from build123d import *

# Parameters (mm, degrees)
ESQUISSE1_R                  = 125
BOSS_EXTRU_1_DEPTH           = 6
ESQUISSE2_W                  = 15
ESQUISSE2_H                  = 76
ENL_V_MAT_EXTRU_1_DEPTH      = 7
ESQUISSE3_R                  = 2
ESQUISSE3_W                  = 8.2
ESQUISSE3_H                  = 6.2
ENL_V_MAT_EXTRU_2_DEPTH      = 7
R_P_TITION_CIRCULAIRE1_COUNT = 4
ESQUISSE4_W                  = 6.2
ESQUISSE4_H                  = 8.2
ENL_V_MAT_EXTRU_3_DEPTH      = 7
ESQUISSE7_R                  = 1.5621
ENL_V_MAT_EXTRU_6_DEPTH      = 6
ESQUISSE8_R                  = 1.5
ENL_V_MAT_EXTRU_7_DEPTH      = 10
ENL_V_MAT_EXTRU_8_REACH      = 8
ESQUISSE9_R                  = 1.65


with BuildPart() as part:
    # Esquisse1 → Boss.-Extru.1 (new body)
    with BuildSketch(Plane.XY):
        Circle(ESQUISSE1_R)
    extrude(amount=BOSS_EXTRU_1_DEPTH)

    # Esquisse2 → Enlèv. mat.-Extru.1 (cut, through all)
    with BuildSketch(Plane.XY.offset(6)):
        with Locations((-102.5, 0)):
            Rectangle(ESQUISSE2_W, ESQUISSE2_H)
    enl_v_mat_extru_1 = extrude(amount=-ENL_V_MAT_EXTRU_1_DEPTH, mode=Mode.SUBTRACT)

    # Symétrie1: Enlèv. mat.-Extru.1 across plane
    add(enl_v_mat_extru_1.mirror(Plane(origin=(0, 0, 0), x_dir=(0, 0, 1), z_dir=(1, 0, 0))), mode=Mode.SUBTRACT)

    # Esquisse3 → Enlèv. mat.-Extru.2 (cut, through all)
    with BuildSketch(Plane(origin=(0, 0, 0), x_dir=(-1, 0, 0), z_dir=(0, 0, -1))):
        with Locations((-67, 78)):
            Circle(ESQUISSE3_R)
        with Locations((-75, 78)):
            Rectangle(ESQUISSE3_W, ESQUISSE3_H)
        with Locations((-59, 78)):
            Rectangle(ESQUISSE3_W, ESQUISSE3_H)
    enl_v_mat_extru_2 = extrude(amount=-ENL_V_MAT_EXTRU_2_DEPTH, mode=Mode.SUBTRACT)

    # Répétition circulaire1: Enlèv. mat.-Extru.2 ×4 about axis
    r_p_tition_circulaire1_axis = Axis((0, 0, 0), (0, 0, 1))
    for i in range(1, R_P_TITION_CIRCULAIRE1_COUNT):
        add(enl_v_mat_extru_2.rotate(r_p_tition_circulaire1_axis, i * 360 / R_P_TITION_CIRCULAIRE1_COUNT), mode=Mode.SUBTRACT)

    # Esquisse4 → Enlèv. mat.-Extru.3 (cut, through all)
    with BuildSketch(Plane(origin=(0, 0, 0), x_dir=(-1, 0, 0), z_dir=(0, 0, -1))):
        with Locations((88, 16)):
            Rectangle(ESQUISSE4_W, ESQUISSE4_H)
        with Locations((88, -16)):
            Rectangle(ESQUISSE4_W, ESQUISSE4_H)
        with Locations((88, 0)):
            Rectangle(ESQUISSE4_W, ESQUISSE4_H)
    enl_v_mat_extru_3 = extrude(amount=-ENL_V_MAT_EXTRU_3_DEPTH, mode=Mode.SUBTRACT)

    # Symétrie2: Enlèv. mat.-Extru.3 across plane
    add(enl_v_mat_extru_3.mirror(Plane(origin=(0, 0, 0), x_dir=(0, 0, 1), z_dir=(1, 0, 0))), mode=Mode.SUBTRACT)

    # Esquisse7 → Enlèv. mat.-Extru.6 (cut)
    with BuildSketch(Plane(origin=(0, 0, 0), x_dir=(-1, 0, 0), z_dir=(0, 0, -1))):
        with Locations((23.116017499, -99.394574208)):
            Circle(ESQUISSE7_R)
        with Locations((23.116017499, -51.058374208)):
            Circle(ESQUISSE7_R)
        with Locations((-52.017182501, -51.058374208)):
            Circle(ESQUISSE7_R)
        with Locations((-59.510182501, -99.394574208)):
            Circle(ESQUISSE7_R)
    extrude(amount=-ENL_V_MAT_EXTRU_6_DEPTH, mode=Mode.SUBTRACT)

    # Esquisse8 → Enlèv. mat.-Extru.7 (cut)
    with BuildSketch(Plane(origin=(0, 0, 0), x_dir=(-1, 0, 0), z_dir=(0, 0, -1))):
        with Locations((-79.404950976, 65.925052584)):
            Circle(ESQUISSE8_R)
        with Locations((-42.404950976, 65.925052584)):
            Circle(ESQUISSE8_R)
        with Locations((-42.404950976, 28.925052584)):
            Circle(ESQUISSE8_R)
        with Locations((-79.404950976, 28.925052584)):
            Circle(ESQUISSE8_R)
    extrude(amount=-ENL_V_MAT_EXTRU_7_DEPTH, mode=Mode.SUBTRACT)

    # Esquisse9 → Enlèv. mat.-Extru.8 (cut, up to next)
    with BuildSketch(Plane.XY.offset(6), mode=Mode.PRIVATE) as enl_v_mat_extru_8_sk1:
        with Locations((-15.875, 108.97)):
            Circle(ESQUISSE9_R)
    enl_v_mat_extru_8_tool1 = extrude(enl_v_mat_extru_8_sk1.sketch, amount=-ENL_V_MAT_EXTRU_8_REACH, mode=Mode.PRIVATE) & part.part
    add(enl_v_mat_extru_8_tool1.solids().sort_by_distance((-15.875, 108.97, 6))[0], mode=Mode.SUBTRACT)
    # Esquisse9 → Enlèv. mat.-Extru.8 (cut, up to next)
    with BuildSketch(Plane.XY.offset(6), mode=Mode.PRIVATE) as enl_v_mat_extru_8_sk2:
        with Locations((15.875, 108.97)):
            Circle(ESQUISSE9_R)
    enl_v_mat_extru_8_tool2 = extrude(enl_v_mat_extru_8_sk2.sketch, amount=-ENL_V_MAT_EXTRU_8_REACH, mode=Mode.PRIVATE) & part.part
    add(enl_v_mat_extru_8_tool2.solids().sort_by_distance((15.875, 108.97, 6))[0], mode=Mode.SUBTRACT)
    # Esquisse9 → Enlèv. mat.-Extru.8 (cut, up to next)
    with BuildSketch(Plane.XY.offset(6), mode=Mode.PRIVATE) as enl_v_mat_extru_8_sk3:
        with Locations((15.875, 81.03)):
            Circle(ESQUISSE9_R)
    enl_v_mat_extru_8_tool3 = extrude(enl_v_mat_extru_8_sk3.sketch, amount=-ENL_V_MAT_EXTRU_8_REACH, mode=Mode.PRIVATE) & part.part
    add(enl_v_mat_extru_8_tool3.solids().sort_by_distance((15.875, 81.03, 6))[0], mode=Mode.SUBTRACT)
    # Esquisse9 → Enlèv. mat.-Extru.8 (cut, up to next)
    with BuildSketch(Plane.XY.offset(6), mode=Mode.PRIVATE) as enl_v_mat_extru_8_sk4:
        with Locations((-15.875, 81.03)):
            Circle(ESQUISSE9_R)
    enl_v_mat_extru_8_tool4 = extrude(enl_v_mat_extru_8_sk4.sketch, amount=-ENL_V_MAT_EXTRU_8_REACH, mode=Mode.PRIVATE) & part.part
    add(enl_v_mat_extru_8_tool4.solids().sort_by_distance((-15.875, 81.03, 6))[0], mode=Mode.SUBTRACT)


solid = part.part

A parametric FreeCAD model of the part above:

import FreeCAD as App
import Part
import Sketcher

doc = App.newDocument("Part")
body = doc.addObject("PartDesign::Body", "Body")

sketch1 = doc.addObject("Sketcher::SketchObject", "Sketch")
body.addObject(sketch1)
sketch1.AttachmentSupport = (doc.XY_Plane, [""])
sketch1.MapMode = "FlatFace"
sketch1.addGeometry(Part.Circle(App.Vector(0, 0, 0), App.Vector(0, 0, 1), 125), False)
sketch1.addConstraint([
    Sketcher.Constraint("Coincident", 0, 3, -1, 1),
    Sketcher.Constraint("Diameter", 0, 250.0),
])
pad1 = doc.addObject("PartDesign::Pad", "Pad")
body.addObject(pad1)
pad1.Profile = sketch1
pad1.Length = 6

sketch2 = doc.addObject("Sketcher::SketchObject", "Sketch001")
body.addObject(sketch2)
sketch2.AttachmentSupport = (doc.XY_Plane, [""])
sketch2.MapMode = "FlatFace"
sketch2.AttachmentOffset = App.Placement(App.Vector(0, 0, 6), App.Rotation())
sketch2.addGeometry([
    Part.LineSegment(App.Vector(-110, 38, 0), App.Vector(-110, -38, 0)),
    Part.LineSegment(App.Vector(-110, -38, 0), App.Vector(-95, -38, 0)),
    Part.LineSegment(App.Vector(-95, -38, 0), App.Vector(-95, 38, 0)),
    Part.LineSegment(App.Vector(-95, 38, 0), App.Vector(-110, 38, 0)),
], False)
sketch2.addConstraint([
    Sketcher.Constraint("Coincident", 0, 2, 1, 1),
    Sketcher.Constraint("Coincident", 1, 2, 2, 1),
    Sketcher.Constraint("Coincident", 2, 2, 3, 1),
    Sketcher.Constraint("Coincident", 3, 2, 0, 1),
    Sketcher.Constraint("Vertical", 0),
    Sketcher.Constraint("Horizontal", 1),
    Sketcher.Constraint("Vertical", 2),
    Sketcher.Constraint("Horizontal", 3),
    Sketcher.Constraint("DistanceX", 1, 1, 1, 2, 15.0),
    Sketcher.Constraint("DistanceY", 0, 2, 0, 1, 76.0),
    Sketcher.Constraint("DistanceX", 0, 2, -1, 1, 110.0),
    Sketcher.Constraint("DistanceY", 0, 2, -1, 1, 38.0),
])
pocket1 = doc.addObject("PartDesign::Pocket", "Pocket")
body.addObject(pocket1)
pocket1.Profile = sketch2
pocket1.Type = "ThroughAll"
doc.recompute()

mirrored = doc.addObject("PartDesign::Mirrored", "Mirrored")
body.addObject(mirrored)
mirrored.Originals = [pocket1]
mirrored.MirrorPlane = (doc.YZ_Plane, [""])
body.Tip = mirrored

sketch3 = doc.addObject("Sketcher::SketchObject", "Sketch002")
body.addObject(sketch3)
sketch3.AttachmentSupport = (doc.XY_Plane, [""])
sketch3.MapMode = "FlatFace"
sketch3.addGeometry([
    Part.Circle(App.Vector(67, 78, 0), App.Vector(0, 0, 1), 2),
    Part.LineSegment(App.Vector(79.1, 81.1, 0), App.Vector(79.1, 74.9, 0)),
    Part.LineSegment(App.Vector(79.1, 74.9, 0), App.Vector(70.9, 74.9, 0)),
    Part.LineSegment(App.Vector(70.9, 74.9, 0), App.Vector(70.9, 81.1, 0)),
    Part.LineSegment(App.Vector(70.9, 81.1, 0), App.Vector(79.1, 81.1, 0)),
    Part.LineSegment(App.Vector(63.1, 81.1, 0), App.Vector(63.1, 74.9, 0)),
    Part.LineSegment(App.Vector(63.1, 74.9, 0), App.Vector(54.9, 74.9, 0)),
    Part.LineSegment(App.Vector(54.9, 74.9, 0), App.Vector(54.9, 81.1, 0)),
    Part.LineSegment(App.Vector(54.9, 81.1, 0), App.Vector(63.1, 81.1, 0)),
], False)
sketch3.addConstraint([
    Sketcher.Constraint("Coincident", 1, 2, 2, 1),
    Sketcher.Constraint("Coincident", 2, 2, 3, 1),
    Sketcher.Constraint("Coincident", 3, 2, 4, 1),
    Sketcher.Constraint("Coincident", 4, 2, 1, 1),
    Sketcher.Constraint("Coincident", 5, 2, 6, 1),
    Sketcher.Constraint("Coincident", 6, 2, 7, 1),
    Sketcher.Constraint("Coincident", 7, 2, 8, 1),
    Sketcher.Constraint("Coincident", 8, 2, 5, 1),
    Sketcher.Constraint("Vertical", 1),
    Sketcher.Constraint("Horizontal", 2),
    Sketcher.Constraint("Vertical", 3),
    Sketcher.Constraint("Horizontal", 4),
    Sketcher.Constraint("Vertical", 5),
    Sketcher.Constraint("Horizontal", 6),
    Sketcher.Constraint("Vertical", 7),
    Sketcher.Constraint("Horizontal", 8),
    Sketcher.Constraint("Horizontal", 2, 2, 5, 2),
    Sketcher.Constraint("Horizontal", 4, 2, 7, 2),
    Sketcher.Constraint("Equal", 4, 6),
    Sketcher.Constraint("Diameter", 0, 4.0),
    Sketcher.Constraint("DistanceX", 2, 2, 2, 1, 8.2),
    Sketcher.Constraint("DistanceY", 1, 2, 1, 1, 6.2),
    Sketcher.Constraint("DistanceX", -1, 1, 0, 3, 67.0),
    Sketcher.Constraint("DistanceY", -1, 1, 0, 3, 78.0),
    Sketcher.Constraint("DistanceX", 5, 2, 1, 2, 16.0),
    Sketcher.Constraint("DistanceX", -1, 1, 1, 2, 79.1),
    Sketcher.Constraint("DistanceY", -1, 1, 1, 2, 74.9),
])
pocket2 = doc.addObject("PartDesign::Pocket", "Pocket001")
body.addObject(pocket2)
pocket2.Profile = sketch3
pocket2.Type = "ThroughAll"
pocket2.Reversed = True
doc.recompute()

polarpattern = doc.addObject("PartDesign::PolarPattern", "PolarPattern")
body.addObject(polarpattern)
polarpattern.Originals = [pocket2]
polarpattern.Axis = (doc.Z_Axis, [""])
polarpattern.Angle = 360
polarpattern.Occurrences = 4
body.Tip = polarpattern

sketch4 = doc.addObject("Sketcher::SketchObject", "Sketch003")
body.addObject(sketch4)
sketch4.AttachmentSupport = (doc.XY_Plane, [""])
sketch4.MapMode = "FlatFace"
sketch4.addGeometry([
    Part.LineSegment(App.Vector(-84.9, 20.1, 0), App.Vector(-84.9, 11.9, 0)),
    Part.LineSegment(App.Vector(-84.9, 11.9, 0), App.Vector(-91.1, 11.9, 0)),
    Part.LineSegment(App.Vector(-91.1, 11.9, 0), App.Vector(-91.1, 20.1, 0)),
    Part.LineSegment(App.Vector(-91.1, 20.1, 0), App.Vector(-84.9, 20.1, 0)),
    Part.LineSegment(App.Vector(-84.9, -11.9, 0), App.Vector(-84.9, -20.1, 0)),
    Part.LineSegment(App.Vector(-84.9, -20.1, 0), App.Vector(-91.1, -20.1, 0)),
    Part.LineSegment(App.Vector(-91.1, -20.1, 0), App.Vector(-91.1, -11.9, 0)),
    Part.LineSegment(App.Vector(-91.1, -11.9, 0), App.Vector(-84.9, -11.9, 0)),
    Part.LineSegment(App.Vector(-84.9, 4.1, 0), App.Vector(-84.9, -4.1, 0)),
    Part.LineSegment(App.Vector(-84.9, -4.1, 0), App.Vector(-91.1, -4.1, 0)),
    Part.LineSegment(App.Vector(-91.1, -4.1, 0), App.Vector(-91.1, 4.1, 0)),
    Part.LineSegment(App.Vector(-91.1, 4.1, 0), App.Vector(-84.9, 4.1, 0)),
], False)
sketch4.addConstraint([
    Sketcher.Constraint("Coincident", 0, 2, 1, 1),
    Sketcher.Constraint("Coincident", 1, 2, 2, 1),
    Sketcher.Constraint("Coincident", 2, 2, 3, 1),
    Sketcher.Constraint("Coincident", 3, 2, 0, 1),
    Sketcher.Constraint("Coincident", 4, 2, 5, 1),
    Sketcher.Constraint("Coincident", 5, 2, 6, 1),
    Sketcher.Constraint("Coincident", 6, 2, 7, 1),
    Sketcher.Constraint("Coincident", 7, 2, 4, 1),
    Sketcher.Constraint("Coincident", 8, 2, 9, 1),
    Sketcher.Constraint("Coincident", 9, 2, 10, 1),
    Sketcher.Constraint("Coincident", 10, 2, 11, 1),
    Sketcher.Constraint("Coincident", 11, 2, 8, 1),
    Sketcher.Constraint("Vertical", 0),
    Sketcher.Constraint("Horizontal", 1),
    Sketcher.Constraint("Vertical", 2),
    Sketcher.Constraint("Horizontal", 3),
    Sketcher.Constraint("Vertical", 4),
    Sketcher.Constraint("Horizontal", 5),
    Sketcher.Constraint("Vertical", 6),
    Sketcher.Constraint("Horizontal", 7),
    Sketcher.Constraint("Vertical", 8),
    Sketcher.Constraint("Horizontal", 9),
    Sketcher.Constraint("Vertical", 10),
    Sketcher.Constraint("Horizontal", 11),
    Sketcher.Constraint("Symmetric", 3, 2, 4, 2, -1),
    Sketcher.Constraint("Symmetric", 1, 2, 6, 2, -1),
    Sketcher.Constraint("Vertical", 7, 2, 8, 2),
    Sketcher.Constraint("Vertical", 6, 2, 9, 2),
    Sketcher.Constraint("Equal", 6, 8),
    Sketcher.Constraint("DistanceX", 1, 2, 1, 1, 6.2),
    Sketcher.Constraint("DistanceY", 0, 2, 0, 1, 8.2),
    Sketcher.Constraint("DistanceY", 4, 2, 0, 2, 32.0),
    Sketcher.Constraint("DistanceY", 8, 2, 0, 2, 16.0),
    Sketcher.Constraint("DistanceX", 0, 2, -1, 1, 84.9),
])
pocket3 = doc.addObject("PartDesign::Pocket", "Pocket002")
body.addObject(pocket3)
pocket3.Profile = sketch4
pocket3.Type = "ThroughAll"
pocket3.Reversed = True
doc.recompute()

mirrored2 = doc.addObject("PartDesign::Mirrored", "Mirrored001")
body.addObject(mirrored2)
mirrored2.Originals = [pocket3]
mirrored2.MirrorPlane = (doc.YZ_Plane, [""])
body.Tip = mirrored2

sketch5 = doc.addObject("Sketcher::SketchObject", "Sketch004")
body.addObject(sketch5)
sketch5.AttachmentSupport = (doc.XY_Plane, [""])
sketch5.MapMode = "FlatFace"
sketch5.addGeometry([
    Part.Circle(App.Vector(-23.116017, -99.394574, 0), App.Vector(0, 0, 1), 1.5621),
    Part.Circle(App.Vector(-23.116017, -51.058374, 0), App.Vector(0, 0, 1), 1.5621),
    Part.Circle(App.Vector(52.017183, -51.058374, 0), App.Vector(0, 0, 1), 1.5621),
    Part.Circle(App.Vector(59.510183, -99.394574, 0), App.Vector(0, 0, 1), 1.5621),
], False)
sketch5.addConstraint([
    Sketcher.Constraint("Equal", 0, 1),
    Sketcher.Constraint("Equal", 1, 2),
    Sketcher.Constraint("Equal", 2, 3),
    Sketcher.Constraint("Horizontal", 1, 3, 2, 3),
    Sketcher.Constraint("Horizontal", 0, 3, 3, 3),
    Sketcher.Constraint("Vertical", 0, 3, 1, 3),
    Sketcher.Constraint("Diameter", 0, 3.1242),
    Sketcher.Constraint("DistanceX", 2, 3, 3, 3, 7.493),
    Sketcher.Constraint("DistanceY", 0, 3, 1, 3, 48.3362),
    Sketcher.Constraint("DistanceX", 1, 3, 2, 3, 75.1332),
    Sketcher.Constraint("DistanceX", 0, 3, -1, 1, 23.116017),
    Sketcher.Constraint("DistanceY", 0, 3, -1, 1, 99.394574),
])
pocket4 = doc.addObject("PartDesign::Pocket", "Pocket003")
body.addObject(pocket4)
pocket4.Profile = sketch5
pocket4.Length = 6
pocket4.Reversed = True

sketch6 = doc.addObject("Sketcher::SketchObject", "Sketch005")
body.addObject(sketch6)
sketch6.AttachmentSupport = (doc.XY_Plane, [""])
sketch6.MapMode = "FlatFace"
sketch6.addGeometry([
    Part.Circle(App.Vector(79.404951, 65.925053, 0), App.Vector(0, 0, 1), 1.5),
    Part.Circle(App.Vector(42.404951, 65.925053, 0), App.Vector(0, 0, 1), 1.5),
    Part.Circle(App.Vector(42.404951, 28.925053, 0), App.Vector(0, 0, 1), 1.5),
    Part.Circle(App.Vector(79.404951, 28.925053, 0), App.Vector(0, 0, 1), 1.5),
], False)
sketch6.addConstraint([
    Sketcher.Constraint("Equal", 0, 1),
    Sketcher.Constraint("Equal", 1, 2),
    Sketcher.Constraint("Equal", 2, 3),
    Sketcher.Constraint("Horizontal", 0, 3, 1, 3),
    Sketcher.Constraint("Horizontal", 2, 3, 3, 3),
    Sketcher.Constraint("Vertical", 1, 3, 2, 3),
    Sketcher.Constraint("Vertical", 0, 3, 3, 3),
    Sketcher.Constraint("Diameter", 0, 3.0),
    Sketcher.Constraint("DistanceX", 1, 3, 0, 3, 37.0),
    Sketcher.Constraint("DistanceY", 2, 3, 1, 3, 37.0),
    Sketcher.Constraint("DistanceX", -1, 1, 0, 3, 79.404951),
    Sketcher.Constraint("DistanceY", -1, 1, 0, 3, 65.925053),
])
pocket5 = doc.addObject("PartDesign::Pocket", "Pocket004")
body.addObject(pocket5)
pocket5.Profile = sketch6
pocket5.Length = 10
pocket5.Reversed = True

sketch7 = doc.addObject("Sketcher::SketchObject", "Sketch006")
body.addObject(sketch7)
sketch7.AttachmentSupport = (doc.XY_Plane, [""])
sketch7.MapMode = "FlatFace"
sketch7.AttachmentOffset = App.Placement(App.Vector(0, 0, 6), App.Rotation())
sketch7.addGeometry(Part.Circle(App.Vector(-15.875, 108.97, 0), App.Vector(0, 0, 1), 1.65), False)
sketch7.addConstraint([
    Sketcher.Constraint("Diameter", 0, 3.3),
    Sketcher.Constraint("DistanceY", -1, 1, 0, 3, 108.97),
    Sketcher.Constraint("DistanceX", 0, 3, -1, 1, 15.875),
])
pocket6 = doc.addObject("PartDesign::Pocket", "Pocket005")
body.addObject(pocket6)
pocket6.Profile = sketch7
pocket6.Type = "UpToFirst"

sketch8 = doc.addObject("Sketcher::SketchObject", "Sketch007")
body.addObject(sketch8)
sketch8.AttachmentSupport = (doc.XY_Plane, [""])
sketch8.MapMode = "FlatFace"
sketch8.AttachmentOffset = App.Placement(App.Vector(0, 0, 6), App.Rotation())
sketch8.addGeometry(Part.Circle(App.Vector(15.875, 108.97, 0), App.Vector(0, 0, 1), 1.65), False)
sketch8.addConstraint([
    Sketcher.Constraint("Diameter", 0, 3.3),
    Sketcher.Constraint("DistanceY", -1, 1, 0, 3, 108.97),
    Sketcher.Constraint("DistanceX", -1, 1, 0, 3, 15.875),
])
pocket7 = doc.addObject("PartDesign::Pocket", "Pocket006")
body.addObject(pocket7)
pocket7.Profile = sketch8
pocket7.Type = "UpToFirst"

sketch9 = doc.addObject("Sketcher::SketchObject", "Sketch008")
body.addObject(sketch9)
sketch9.AttachmentSupport = (doc.XY_Plane, [""])
sketch9.MapMode = "FlatFace"
sketch9.AttachmentOffset = App.Placement(App.Vector(0, 0, 6), App.Rotation())
sketch9.addGeometry(Part.Circle(App.Vector(15.875, 81.03, 0), App.Vector(0, 0, 1), 1.65), False)
sketch9.addConstraint([
    Sketcher.Constraint("Diameter", 0, 3.3),
    Sketcher.Constraint("DistanceY", -1, 1, 0, 3, 81.03),
    Sketcher.Constraint("DistanceX", -1, 1, 0, 3, 15.875),
])
pocket8 = doc.addObject("PartDesign::Pocket", "Pocket007")
body.addObject(pocket8)
pocket8.Profile = sketch9
pocket8.Type = "UpToFirst"

sketch10 = doc.addObject("Sketcher::SketchObject", "Sketch009")
body.addObject(sketch10)
sketch10.AttachmentSupport = (doc.XY_Plane, [""])
sketch10.MapMode = "FlatFace"
sketch10.AttachmentOffset = App.Placement(App.Vector(0, 0, 6), App.Rotation())
sketch10.addGeometry(Part.Circle(App.Vector(-15.875, 81.03, 0), App.Vector(0, 0, 1), 1.65), False)
sketch10.addConstraint([
    Sketcher.Constraint("Diameter", 0, 3.3),
    Sketcher.Constraint("DistanceY", -1, 1, 0, 3, 81.03),
    Sketcher.Constraint("DistanceX", 0, 3, -1, 1, 15.875),
])
pocket9 = doc.addObject("PartDesign::Pocket", "Pocket008")
body.addObject(pocket9)
pocket9.Profile = sketch10
pocket9.Type = "UpToFirst"

doc.recompute()
